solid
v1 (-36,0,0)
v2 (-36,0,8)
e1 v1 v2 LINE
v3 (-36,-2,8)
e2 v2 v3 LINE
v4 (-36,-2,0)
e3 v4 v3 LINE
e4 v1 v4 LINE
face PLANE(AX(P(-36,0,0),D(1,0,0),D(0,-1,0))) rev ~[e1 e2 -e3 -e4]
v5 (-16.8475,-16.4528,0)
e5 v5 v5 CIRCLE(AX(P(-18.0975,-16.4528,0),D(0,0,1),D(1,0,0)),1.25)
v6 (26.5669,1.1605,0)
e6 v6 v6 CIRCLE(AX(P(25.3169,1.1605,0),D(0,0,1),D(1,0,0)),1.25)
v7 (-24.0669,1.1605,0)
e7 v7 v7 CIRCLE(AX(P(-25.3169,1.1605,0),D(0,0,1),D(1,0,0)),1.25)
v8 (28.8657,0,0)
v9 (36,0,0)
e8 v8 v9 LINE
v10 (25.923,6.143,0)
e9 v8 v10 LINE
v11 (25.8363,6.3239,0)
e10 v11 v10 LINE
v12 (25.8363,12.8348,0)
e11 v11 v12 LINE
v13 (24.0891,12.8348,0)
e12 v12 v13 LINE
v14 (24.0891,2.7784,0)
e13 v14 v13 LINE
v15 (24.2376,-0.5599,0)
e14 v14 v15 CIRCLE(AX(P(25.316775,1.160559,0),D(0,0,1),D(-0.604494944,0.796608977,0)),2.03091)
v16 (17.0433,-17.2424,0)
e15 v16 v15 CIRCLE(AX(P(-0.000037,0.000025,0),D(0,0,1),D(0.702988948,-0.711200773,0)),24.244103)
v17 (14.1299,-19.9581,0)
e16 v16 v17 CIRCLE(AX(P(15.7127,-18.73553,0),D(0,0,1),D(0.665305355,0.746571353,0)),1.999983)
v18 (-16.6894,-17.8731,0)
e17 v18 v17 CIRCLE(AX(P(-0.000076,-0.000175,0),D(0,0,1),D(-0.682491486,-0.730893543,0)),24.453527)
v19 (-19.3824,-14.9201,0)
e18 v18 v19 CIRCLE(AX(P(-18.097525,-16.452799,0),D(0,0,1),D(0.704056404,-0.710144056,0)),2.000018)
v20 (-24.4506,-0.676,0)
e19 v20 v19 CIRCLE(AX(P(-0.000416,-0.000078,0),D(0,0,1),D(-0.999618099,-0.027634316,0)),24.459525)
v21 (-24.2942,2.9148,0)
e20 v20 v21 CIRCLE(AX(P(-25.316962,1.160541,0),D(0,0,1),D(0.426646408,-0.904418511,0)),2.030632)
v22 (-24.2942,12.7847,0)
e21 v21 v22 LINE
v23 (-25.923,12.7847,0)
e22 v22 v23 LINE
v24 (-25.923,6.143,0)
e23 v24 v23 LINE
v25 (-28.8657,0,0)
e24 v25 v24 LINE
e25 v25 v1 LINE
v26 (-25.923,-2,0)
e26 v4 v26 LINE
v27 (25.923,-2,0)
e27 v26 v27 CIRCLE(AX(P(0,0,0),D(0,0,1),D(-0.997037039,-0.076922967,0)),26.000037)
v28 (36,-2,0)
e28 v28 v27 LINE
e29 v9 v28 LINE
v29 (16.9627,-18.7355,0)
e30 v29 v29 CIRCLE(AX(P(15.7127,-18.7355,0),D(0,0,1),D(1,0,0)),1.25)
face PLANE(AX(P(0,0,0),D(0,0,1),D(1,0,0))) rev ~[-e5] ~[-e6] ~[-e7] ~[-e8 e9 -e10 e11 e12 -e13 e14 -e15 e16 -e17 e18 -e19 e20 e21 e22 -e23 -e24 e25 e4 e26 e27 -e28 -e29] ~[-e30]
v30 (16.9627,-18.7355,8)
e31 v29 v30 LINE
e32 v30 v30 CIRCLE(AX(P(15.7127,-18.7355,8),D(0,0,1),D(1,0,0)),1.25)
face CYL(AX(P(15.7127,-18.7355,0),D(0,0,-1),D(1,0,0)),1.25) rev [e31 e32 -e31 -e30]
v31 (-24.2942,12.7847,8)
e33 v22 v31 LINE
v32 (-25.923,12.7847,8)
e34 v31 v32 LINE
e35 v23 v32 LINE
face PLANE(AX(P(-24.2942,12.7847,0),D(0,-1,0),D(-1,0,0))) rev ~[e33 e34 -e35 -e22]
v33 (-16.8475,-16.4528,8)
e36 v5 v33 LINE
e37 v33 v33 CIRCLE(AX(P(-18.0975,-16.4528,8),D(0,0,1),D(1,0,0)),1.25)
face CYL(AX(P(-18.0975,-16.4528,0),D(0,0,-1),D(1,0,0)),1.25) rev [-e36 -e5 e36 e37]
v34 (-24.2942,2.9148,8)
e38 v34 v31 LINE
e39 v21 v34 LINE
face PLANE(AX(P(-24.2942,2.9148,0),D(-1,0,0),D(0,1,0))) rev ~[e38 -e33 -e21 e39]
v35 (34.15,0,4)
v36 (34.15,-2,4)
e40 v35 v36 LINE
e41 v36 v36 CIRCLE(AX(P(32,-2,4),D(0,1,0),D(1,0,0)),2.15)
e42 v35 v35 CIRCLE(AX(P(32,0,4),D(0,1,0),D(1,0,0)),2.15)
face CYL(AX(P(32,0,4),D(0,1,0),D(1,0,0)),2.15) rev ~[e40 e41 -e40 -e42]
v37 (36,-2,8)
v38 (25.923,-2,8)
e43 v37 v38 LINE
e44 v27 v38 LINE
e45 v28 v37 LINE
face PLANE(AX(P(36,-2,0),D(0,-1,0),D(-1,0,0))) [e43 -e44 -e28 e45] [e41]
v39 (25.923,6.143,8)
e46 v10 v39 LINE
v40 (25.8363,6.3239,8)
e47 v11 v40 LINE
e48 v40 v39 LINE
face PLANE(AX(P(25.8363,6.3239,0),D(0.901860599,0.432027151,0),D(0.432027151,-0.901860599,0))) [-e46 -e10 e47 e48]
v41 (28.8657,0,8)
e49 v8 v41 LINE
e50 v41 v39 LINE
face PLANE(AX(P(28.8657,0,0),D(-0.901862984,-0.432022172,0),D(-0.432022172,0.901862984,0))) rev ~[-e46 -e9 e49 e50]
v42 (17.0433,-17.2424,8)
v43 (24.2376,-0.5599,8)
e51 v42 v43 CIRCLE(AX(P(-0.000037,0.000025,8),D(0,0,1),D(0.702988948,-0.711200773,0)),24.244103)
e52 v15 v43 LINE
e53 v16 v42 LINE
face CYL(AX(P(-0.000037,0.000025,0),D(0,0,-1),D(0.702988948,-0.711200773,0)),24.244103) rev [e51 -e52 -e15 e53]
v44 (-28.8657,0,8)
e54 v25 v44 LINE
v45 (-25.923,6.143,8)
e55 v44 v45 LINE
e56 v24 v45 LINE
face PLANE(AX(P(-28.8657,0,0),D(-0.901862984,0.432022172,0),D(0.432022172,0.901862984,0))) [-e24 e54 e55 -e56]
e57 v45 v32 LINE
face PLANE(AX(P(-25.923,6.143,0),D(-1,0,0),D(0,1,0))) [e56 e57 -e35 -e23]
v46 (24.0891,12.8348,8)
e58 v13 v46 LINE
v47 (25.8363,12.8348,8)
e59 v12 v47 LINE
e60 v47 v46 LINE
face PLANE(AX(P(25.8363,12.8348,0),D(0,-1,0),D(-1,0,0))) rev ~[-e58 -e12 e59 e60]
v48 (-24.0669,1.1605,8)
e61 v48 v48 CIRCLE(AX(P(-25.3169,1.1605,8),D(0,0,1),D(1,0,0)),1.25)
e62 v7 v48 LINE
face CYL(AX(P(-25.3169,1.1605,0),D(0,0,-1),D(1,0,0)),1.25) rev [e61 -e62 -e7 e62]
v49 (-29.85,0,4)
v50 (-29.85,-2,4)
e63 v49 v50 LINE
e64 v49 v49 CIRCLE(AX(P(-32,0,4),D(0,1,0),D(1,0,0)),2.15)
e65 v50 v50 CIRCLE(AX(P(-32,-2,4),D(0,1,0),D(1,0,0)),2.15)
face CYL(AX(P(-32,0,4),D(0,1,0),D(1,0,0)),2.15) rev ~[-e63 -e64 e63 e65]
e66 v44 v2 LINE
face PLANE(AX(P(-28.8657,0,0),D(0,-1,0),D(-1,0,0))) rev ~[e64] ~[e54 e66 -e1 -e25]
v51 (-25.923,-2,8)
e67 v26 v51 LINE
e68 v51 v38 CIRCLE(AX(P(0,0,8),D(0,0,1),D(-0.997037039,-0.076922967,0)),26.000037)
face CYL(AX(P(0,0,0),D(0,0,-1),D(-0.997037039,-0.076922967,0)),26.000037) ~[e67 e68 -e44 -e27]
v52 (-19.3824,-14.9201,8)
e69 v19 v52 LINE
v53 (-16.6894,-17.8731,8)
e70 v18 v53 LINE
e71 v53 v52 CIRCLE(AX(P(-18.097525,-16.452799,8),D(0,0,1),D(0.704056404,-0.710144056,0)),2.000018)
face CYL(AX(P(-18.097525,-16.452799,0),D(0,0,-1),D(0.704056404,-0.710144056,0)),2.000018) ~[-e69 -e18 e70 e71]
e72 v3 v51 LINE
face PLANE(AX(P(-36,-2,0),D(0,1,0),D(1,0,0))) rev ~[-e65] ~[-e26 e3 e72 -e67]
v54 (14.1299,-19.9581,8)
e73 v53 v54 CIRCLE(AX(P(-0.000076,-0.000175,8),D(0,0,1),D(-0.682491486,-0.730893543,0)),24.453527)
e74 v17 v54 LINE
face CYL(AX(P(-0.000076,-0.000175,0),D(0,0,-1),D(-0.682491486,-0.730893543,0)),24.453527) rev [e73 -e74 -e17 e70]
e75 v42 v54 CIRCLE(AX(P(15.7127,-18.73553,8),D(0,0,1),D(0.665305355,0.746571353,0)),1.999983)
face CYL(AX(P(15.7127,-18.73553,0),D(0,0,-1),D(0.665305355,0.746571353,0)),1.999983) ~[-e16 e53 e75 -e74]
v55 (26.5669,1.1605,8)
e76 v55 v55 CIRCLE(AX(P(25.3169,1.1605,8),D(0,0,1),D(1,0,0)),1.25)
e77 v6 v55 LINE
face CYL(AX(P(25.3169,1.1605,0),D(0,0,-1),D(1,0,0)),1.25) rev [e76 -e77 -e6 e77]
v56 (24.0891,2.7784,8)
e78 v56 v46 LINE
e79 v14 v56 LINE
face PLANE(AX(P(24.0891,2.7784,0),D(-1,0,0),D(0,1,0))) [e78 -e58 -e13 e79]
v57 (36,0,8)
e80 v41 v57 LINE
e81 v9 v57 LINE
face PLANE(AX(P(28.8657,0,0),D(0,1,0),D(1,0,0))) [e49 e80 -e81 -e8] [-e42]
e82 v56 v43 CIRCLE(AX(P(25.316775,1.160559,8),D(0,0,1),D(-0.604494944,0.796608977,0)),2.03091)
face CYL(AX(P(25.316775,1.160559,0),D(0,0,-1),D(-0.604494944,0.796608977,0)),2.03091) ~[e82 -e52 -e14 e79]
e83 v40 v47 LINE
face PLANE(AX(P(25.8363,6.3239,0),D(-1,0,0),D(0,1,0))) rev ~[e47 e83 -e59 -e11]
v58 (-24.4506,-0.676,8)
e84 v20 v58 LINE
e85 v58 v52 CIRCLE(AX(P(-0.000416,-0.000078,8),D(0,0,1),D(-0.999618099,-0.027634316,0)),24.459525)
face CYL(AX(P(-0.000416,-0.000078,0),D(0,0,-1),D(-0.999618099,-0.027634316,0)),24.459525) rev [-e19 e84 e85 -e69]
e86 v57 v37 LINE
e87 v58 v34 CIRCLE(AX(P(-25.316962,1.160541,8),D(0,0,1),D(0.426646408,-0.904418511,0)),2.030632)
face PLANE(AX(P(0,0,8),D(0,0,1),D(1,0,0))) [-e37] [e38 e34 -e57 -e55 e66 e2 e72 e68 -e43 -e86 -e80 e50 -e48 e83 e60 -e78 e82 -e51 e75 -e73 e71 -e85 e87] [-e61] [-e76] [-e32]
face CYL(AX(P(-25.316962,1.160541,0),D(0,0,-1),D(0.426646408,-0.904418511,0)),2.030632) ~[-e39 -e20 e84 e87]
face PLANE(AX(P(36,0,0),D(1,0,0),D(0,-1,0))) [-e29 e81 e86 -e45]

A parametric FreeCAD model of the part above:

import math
import FreeCAD as App
import Part
import Sketcher

V = App.Vector
Q = App.Units.Quantity

doc = App.newDocument("Part")
body = doc.addObject("PartDesign::Body", "Body")

# Sketch on XY plane
sketch1 = doc.addObject("Sketcher::SketchObject", "Sketch")
body.addObject(sketch1)
sketch1.AttachmentSupport = (doc.XY_Plane, [""])
sketch1.MapMode = "FlatFace"
sketch1.addGeometry([
    Part.ArcOfCircle(Part.Circle(V(0, 0, 0), V(0, 0, 1), 24.45), math.radians(-133), math.radians(-55)),  # 0
    Part.ArcOfCircle(Part.Circle(V(-18.1, -16.45, 0), V(0, 0, 1), 2), math.radians(-45), math.radians(130)),  # 1
    Part.ArcOfCircle(Part.Circle(V(0, 0, 0), V(0, 0, 1), 24.46), math.radians(-178), math.radians(-142)),  # 2
    Part.ArcOfCircle(Part.Circle(V(-25.32, 1.16, 0), V(0, 0, 1), 2.03), math.radians(-65), math.radians(60)),  # 3
    Part.LineSegment(V(-24.29, 2.91, 0), V(-24.29, 12.78, 0)),  # 4
    Part.LineSegment(V(-24.29, 12.78, 0), V(-25.92, 12.78, 0)),  # 5
    Part.LineSegment(V(-25.92, 12.78, 0), V(-25.92, 6.14, 0)),  # 6
    Part.LineSegment(V(-25.92, 6.14, 0), V(-28.87, 0, 0)),  # 7
    Part.LineSegment(V(-28.87, 0, 0), V(-36, 0, 0)),  # 8
    Part.LineSegment(V(-36, 0, 0), V(-36, -2, 0)),  # 9
    Part.LineSegment(V(-36, -2, 0), V(-25.92, -2, 0)),  # 10
    Part.ArcOfCircle(Part.Circle(V(0, 0, 0), V(0, 0, 1), 26), math.radians(-176), math.radians(-4)),  # 11
    Part.LineSegment(V(25.92, -2, 0), V(36, -2, 0)),  # 12
    Part.LineSegment(V(36, -2, 0), V(36, 0, 0)),  # 13
    Part.LineSegment(V(36, 0, 0), V(28.87, 0, 0)),  # 14
    Part.LineSegment(V(28.87, 0, 0), V(25.92, 6.14, 0)),  # 15
    Part.LineSegment(V(25.92, 6.14, 0), V(25.84, 6.32, 0)),  # 16
    Part.LineSegment(V(25.84, 6.32, 0), V(25.84, 12.83, 0)),  # 17
    Part.LineSegment(V(25.84, 12.83, 0), V(24.09, 12.83, 0)),  # 18
    Part.LineSegment(V(24.09, 12.83, 0), V(24.09, 2.78, 0)),  # 19
    Part.ArcOfCircle(Part.Circle(V(25.32, 1.16, 0), V(0, 0, 1), 2.03), math.radians(127), math.radians(238)),  # 20
    Part.ArcOfCircle(Part.Circle(V(0, 0, 0), V(0, 0, 1), 24.24), math.radians(-45), math.radians(-1)),  # 21
    Part.ArcOfCircle(Part.Circle(V(15.71, -18.74, 0), V(0, 0, 1), 2), math.radians(48), math.radians(218)),  # 22
    Part.Circle(V(-18.1, -16.45, 0), V(0, 0, 1), 1.25),  # 23
    Part.Circle(V(15.71, -18.74, 0), V(0, 0, 1), 1.25),  # 24
    Part.Circle(V(-25.32, 1.16, 0), V(0, 0, 1), 1.25),  # 25
    Part.Circle(V(25.32, 1.16, 0), V(0, 0, 1), 1.25),  # 26
], False)
sketch1.addConstraint([
    Sketcher.Constraint("Coincident", 0, 1, 1, 1),
    Sketcher.Constraint("Coincident", 1, 2, 2, 2),
    Sketcher.Constraint("Coincident", 2, 1, 3, 1),
    Sketcher.Constraint("Coincident", 3, 2, 4, 1),
    Sketcher.Constraint("Coincident", 4, 2, 5, 1),
    Sketcher.Constraint("Coincident", 5, 2, 6, 1),
    Sketcher.Constraint("Coincident", 6, 2, 7, 1),
    Sketcher.Constraint("Coincident", 7, 2, 8, 1),
    Sketcher.Constraint("Coincident", 8, 2, 9, 1),
    Sketcher.Constraint("Coincident", 9, 2, 10, 1),
    Sketcher.Constraint("Coincident", 10, 2, 11, 1),
    Sketcher.Constraint("Coincident", 11, 2, 12, 1),
    Sketcher.Constraint("Coincident", 12, 2, 13, 1),
    Sketcher.Constraint("Coincident", 13, 2, 14, 1),
    Sketcher.Constraint("Coincident", 14, 2, 15, 1),
    Sketcher.Constraint("Coincident", 15, 2, 16, 1),
    Sketcher.Constraint("Coincident", 16, 2, 17, 1),
    Sketcher.Constraint("Coincident", 17, 2, 18, 1),
    Sketcher.Constraint("Coincident", 18, 2, 19, 1),
    Sketcher.Constraint("Coincident", 19, 2, 20, 1),
    Sketcher.Constraint("Coincident", 20, 2, 21, 2),
    Sketcher.Constraint("Coincident", 21, 1, 22, 1),
    Sketcher.Constraint("Coincident", 22, 2, 0, 2),
    Sketcher.Constraint("Vertical", 4),
    Sketcher.Constraint("Horizontal", 5),
    Sketcher.Constraint("Vertical", 6),
    Sketcher.Constraint("Horizontal", 8),
    Sketcher.Constraint("Vertical", 9),
    Sketcher.Constraint("Horizontal", 10),
    Sketcher.Constraint("Horizontal", 12),
    Sketcher.Constraint("Vertical", 13),
    Sketcher.Constraint("Horizontal", 14),
    Sketcher.Constraint("Vertical", 17),
    Sketcher.Constraint("Horizontal", 18),
    Sketcher.Constraint("Vertical", 19),
    Sketcher.Constraint("Coincident", 0, 3, -1, 1),
    Sketcher.Constraint("Coincident", 2, 3, -1, 1),
    Sketcher.Constraint("Coincident", 11, 3, -1, 1),
    Sketcher.Constraint("Coincident", 21, 3, -1, 1),
    Sketcher.Constraint("Coincident", 23, 3, 1, 3),
    Sketcher.Constraint("Coincident", 24, 3, 22, 3),
    Sketcher.Constraint("Coincident", 25, 3, 3, 3),
    Sketcher.Constraint("Coincident", 26, 3, 20, 3),
    Sketcher.Constraint("Equal", 1, 22),
    Sketcher.Constraint("Equal", 23, 24),
    Sketcher.Constraint("Equal", 24, 25),
    Sketcher.Constraint("Equal", 25, 26),
    Sketcher.Constraint("Symmetric", 8, 2, 13, 2, -1, 1),
    Sketcher.Constraint("Symmetric", 3, 3, 20, 3, -2),
    Sketcher.Constraint("Symmetric", 7, 2, 14, 2, -2),
    Sketcher.Constraint("Symmetric", 6, 2, 15, 2, -2),
    Sketcher.Constraint("Parallel", 15, 16),
    Sketcher.Constraint("Horizontal", 10, 2, 11, 2),
    Sketcher.Constraint("Vertical", 6, 2, 10, 2),
    Sketcher.Constraint("Radius", 1, Q("2 mm")),
    Sketcher.Constraint("Diameter", 23, Q("2.5 mm")),
    Sketcher.Constraint("DistanceY", 9, 2, 9, 1, Q("2 mm")),
    Sketcher.Constraint("Radius", 11, Q("26 mm")),
    Sketcher.Constraint("Radius", 2, Q("24.46 mm")),
    Sketcher.Constraint("DistanceX", 8, 2, -1, 1, Q("36 mm")),
    Sketcher.Constraint("Radius", 20, Q("2.031 mm")),
    Sketcher.Constraint("Radius", 21, Q("24.244 mm")),
    Sketcher.Constraint("DistanceY", 4, 1, 4, 2, Q("9.87 mm")),
    Sketcher.Constraint("Radius", 0, Q("24.4537 mm")),
    Sketcher.Constraint("Radius", 3, Q("2.0306 mm")),
    Sketcher.Constraint("DistanceY", 17, 1, 17, 2, Q("6.511 mm")),
    Sketcher.Constraint("DistanceY", 20, 2, -1, 1, Q("0.56 mm")),
    Sketcher.Constraint("DistanceX", -1, 1, 22, 2, Q("14.13 mm")),
    Sketcher.Constraint("DistanceX", 5, 2, 5, 1, Q("1.6288 mm")),
    Sketcher.Constraint("DistanceX", 8, 2, 8, 1, Q("7.1343 mm")),
    Sketcher.Constraint("DistanceX", 18, 2, 18, 1, Q("1.7472 mm")),
    Sketcher.Constraint("DistanceY", 6, 2, 6, 1, Q("6.6417 mm")),
    Sketcher.Constraint("DistanceY", 19, 2, 19, 1, Q("10.0564 mm")),
    Sketcher.Constraint("DistanceX", 3, 3, -1, 1, Q("25.317 mm")),
    Sketcher.Constraint("DistanceY", 0, 1, -1, 1, Q("17.873 mm")),
    Sketcher.Constraint("DistanceY", 22, 3, 20, 3, Q("19.896 mm")),
    Sketcher.Constraint("DistanceX", 1, 3, 0, 1, Q("1.408 mm")),
])
pad1 = doc.addObject("PartDesign::Pad", "Pad")
body.addObject(pad1)
pad1.Profile = sketch1
pad1.Length = 8

# Sketch on XZ plane
sketch2 = doc.addObject("Sketcher::SketchObject", "Sketch001")
body.addObject(sketch2)
sketch2.AttachmentSupport = (doc.XZ_Plane, [""])
sketch2.MapMode = "FlatFace"
sketch2.addGeometry([
    Part.Circle(V(-32, 4, 0), V(0, 0, 1), 2.1),
    Part.Circle(V(32, 4, 0), V(0, 0, 1), 2.1),
], False)
sketch2.addConstraint([
    Sketcher.Constraint("Equal", 0, 1),
    Sketcher.Constraint("Symmetric", 0, 3, 1, 3, -2),
    Sketcher.Constraint("Diameter", 0, Q("4.3 mm")),
    Sketcher.Constraint("DistanceY", -1, 1, 0, 3, Q("4 mm")),
    Sketcher.Constraint("DistanceX", 0, 3, -1, 1, Q("32 mm")),
])
pocket1 = doc.addObject("PartDesign::Pocket", "Pocket")
body.addObject(pocket1)
pocket1.Profile = sketch2
pocket1.Length = 8
pocket1.Reversed = True

doc.recompute()
